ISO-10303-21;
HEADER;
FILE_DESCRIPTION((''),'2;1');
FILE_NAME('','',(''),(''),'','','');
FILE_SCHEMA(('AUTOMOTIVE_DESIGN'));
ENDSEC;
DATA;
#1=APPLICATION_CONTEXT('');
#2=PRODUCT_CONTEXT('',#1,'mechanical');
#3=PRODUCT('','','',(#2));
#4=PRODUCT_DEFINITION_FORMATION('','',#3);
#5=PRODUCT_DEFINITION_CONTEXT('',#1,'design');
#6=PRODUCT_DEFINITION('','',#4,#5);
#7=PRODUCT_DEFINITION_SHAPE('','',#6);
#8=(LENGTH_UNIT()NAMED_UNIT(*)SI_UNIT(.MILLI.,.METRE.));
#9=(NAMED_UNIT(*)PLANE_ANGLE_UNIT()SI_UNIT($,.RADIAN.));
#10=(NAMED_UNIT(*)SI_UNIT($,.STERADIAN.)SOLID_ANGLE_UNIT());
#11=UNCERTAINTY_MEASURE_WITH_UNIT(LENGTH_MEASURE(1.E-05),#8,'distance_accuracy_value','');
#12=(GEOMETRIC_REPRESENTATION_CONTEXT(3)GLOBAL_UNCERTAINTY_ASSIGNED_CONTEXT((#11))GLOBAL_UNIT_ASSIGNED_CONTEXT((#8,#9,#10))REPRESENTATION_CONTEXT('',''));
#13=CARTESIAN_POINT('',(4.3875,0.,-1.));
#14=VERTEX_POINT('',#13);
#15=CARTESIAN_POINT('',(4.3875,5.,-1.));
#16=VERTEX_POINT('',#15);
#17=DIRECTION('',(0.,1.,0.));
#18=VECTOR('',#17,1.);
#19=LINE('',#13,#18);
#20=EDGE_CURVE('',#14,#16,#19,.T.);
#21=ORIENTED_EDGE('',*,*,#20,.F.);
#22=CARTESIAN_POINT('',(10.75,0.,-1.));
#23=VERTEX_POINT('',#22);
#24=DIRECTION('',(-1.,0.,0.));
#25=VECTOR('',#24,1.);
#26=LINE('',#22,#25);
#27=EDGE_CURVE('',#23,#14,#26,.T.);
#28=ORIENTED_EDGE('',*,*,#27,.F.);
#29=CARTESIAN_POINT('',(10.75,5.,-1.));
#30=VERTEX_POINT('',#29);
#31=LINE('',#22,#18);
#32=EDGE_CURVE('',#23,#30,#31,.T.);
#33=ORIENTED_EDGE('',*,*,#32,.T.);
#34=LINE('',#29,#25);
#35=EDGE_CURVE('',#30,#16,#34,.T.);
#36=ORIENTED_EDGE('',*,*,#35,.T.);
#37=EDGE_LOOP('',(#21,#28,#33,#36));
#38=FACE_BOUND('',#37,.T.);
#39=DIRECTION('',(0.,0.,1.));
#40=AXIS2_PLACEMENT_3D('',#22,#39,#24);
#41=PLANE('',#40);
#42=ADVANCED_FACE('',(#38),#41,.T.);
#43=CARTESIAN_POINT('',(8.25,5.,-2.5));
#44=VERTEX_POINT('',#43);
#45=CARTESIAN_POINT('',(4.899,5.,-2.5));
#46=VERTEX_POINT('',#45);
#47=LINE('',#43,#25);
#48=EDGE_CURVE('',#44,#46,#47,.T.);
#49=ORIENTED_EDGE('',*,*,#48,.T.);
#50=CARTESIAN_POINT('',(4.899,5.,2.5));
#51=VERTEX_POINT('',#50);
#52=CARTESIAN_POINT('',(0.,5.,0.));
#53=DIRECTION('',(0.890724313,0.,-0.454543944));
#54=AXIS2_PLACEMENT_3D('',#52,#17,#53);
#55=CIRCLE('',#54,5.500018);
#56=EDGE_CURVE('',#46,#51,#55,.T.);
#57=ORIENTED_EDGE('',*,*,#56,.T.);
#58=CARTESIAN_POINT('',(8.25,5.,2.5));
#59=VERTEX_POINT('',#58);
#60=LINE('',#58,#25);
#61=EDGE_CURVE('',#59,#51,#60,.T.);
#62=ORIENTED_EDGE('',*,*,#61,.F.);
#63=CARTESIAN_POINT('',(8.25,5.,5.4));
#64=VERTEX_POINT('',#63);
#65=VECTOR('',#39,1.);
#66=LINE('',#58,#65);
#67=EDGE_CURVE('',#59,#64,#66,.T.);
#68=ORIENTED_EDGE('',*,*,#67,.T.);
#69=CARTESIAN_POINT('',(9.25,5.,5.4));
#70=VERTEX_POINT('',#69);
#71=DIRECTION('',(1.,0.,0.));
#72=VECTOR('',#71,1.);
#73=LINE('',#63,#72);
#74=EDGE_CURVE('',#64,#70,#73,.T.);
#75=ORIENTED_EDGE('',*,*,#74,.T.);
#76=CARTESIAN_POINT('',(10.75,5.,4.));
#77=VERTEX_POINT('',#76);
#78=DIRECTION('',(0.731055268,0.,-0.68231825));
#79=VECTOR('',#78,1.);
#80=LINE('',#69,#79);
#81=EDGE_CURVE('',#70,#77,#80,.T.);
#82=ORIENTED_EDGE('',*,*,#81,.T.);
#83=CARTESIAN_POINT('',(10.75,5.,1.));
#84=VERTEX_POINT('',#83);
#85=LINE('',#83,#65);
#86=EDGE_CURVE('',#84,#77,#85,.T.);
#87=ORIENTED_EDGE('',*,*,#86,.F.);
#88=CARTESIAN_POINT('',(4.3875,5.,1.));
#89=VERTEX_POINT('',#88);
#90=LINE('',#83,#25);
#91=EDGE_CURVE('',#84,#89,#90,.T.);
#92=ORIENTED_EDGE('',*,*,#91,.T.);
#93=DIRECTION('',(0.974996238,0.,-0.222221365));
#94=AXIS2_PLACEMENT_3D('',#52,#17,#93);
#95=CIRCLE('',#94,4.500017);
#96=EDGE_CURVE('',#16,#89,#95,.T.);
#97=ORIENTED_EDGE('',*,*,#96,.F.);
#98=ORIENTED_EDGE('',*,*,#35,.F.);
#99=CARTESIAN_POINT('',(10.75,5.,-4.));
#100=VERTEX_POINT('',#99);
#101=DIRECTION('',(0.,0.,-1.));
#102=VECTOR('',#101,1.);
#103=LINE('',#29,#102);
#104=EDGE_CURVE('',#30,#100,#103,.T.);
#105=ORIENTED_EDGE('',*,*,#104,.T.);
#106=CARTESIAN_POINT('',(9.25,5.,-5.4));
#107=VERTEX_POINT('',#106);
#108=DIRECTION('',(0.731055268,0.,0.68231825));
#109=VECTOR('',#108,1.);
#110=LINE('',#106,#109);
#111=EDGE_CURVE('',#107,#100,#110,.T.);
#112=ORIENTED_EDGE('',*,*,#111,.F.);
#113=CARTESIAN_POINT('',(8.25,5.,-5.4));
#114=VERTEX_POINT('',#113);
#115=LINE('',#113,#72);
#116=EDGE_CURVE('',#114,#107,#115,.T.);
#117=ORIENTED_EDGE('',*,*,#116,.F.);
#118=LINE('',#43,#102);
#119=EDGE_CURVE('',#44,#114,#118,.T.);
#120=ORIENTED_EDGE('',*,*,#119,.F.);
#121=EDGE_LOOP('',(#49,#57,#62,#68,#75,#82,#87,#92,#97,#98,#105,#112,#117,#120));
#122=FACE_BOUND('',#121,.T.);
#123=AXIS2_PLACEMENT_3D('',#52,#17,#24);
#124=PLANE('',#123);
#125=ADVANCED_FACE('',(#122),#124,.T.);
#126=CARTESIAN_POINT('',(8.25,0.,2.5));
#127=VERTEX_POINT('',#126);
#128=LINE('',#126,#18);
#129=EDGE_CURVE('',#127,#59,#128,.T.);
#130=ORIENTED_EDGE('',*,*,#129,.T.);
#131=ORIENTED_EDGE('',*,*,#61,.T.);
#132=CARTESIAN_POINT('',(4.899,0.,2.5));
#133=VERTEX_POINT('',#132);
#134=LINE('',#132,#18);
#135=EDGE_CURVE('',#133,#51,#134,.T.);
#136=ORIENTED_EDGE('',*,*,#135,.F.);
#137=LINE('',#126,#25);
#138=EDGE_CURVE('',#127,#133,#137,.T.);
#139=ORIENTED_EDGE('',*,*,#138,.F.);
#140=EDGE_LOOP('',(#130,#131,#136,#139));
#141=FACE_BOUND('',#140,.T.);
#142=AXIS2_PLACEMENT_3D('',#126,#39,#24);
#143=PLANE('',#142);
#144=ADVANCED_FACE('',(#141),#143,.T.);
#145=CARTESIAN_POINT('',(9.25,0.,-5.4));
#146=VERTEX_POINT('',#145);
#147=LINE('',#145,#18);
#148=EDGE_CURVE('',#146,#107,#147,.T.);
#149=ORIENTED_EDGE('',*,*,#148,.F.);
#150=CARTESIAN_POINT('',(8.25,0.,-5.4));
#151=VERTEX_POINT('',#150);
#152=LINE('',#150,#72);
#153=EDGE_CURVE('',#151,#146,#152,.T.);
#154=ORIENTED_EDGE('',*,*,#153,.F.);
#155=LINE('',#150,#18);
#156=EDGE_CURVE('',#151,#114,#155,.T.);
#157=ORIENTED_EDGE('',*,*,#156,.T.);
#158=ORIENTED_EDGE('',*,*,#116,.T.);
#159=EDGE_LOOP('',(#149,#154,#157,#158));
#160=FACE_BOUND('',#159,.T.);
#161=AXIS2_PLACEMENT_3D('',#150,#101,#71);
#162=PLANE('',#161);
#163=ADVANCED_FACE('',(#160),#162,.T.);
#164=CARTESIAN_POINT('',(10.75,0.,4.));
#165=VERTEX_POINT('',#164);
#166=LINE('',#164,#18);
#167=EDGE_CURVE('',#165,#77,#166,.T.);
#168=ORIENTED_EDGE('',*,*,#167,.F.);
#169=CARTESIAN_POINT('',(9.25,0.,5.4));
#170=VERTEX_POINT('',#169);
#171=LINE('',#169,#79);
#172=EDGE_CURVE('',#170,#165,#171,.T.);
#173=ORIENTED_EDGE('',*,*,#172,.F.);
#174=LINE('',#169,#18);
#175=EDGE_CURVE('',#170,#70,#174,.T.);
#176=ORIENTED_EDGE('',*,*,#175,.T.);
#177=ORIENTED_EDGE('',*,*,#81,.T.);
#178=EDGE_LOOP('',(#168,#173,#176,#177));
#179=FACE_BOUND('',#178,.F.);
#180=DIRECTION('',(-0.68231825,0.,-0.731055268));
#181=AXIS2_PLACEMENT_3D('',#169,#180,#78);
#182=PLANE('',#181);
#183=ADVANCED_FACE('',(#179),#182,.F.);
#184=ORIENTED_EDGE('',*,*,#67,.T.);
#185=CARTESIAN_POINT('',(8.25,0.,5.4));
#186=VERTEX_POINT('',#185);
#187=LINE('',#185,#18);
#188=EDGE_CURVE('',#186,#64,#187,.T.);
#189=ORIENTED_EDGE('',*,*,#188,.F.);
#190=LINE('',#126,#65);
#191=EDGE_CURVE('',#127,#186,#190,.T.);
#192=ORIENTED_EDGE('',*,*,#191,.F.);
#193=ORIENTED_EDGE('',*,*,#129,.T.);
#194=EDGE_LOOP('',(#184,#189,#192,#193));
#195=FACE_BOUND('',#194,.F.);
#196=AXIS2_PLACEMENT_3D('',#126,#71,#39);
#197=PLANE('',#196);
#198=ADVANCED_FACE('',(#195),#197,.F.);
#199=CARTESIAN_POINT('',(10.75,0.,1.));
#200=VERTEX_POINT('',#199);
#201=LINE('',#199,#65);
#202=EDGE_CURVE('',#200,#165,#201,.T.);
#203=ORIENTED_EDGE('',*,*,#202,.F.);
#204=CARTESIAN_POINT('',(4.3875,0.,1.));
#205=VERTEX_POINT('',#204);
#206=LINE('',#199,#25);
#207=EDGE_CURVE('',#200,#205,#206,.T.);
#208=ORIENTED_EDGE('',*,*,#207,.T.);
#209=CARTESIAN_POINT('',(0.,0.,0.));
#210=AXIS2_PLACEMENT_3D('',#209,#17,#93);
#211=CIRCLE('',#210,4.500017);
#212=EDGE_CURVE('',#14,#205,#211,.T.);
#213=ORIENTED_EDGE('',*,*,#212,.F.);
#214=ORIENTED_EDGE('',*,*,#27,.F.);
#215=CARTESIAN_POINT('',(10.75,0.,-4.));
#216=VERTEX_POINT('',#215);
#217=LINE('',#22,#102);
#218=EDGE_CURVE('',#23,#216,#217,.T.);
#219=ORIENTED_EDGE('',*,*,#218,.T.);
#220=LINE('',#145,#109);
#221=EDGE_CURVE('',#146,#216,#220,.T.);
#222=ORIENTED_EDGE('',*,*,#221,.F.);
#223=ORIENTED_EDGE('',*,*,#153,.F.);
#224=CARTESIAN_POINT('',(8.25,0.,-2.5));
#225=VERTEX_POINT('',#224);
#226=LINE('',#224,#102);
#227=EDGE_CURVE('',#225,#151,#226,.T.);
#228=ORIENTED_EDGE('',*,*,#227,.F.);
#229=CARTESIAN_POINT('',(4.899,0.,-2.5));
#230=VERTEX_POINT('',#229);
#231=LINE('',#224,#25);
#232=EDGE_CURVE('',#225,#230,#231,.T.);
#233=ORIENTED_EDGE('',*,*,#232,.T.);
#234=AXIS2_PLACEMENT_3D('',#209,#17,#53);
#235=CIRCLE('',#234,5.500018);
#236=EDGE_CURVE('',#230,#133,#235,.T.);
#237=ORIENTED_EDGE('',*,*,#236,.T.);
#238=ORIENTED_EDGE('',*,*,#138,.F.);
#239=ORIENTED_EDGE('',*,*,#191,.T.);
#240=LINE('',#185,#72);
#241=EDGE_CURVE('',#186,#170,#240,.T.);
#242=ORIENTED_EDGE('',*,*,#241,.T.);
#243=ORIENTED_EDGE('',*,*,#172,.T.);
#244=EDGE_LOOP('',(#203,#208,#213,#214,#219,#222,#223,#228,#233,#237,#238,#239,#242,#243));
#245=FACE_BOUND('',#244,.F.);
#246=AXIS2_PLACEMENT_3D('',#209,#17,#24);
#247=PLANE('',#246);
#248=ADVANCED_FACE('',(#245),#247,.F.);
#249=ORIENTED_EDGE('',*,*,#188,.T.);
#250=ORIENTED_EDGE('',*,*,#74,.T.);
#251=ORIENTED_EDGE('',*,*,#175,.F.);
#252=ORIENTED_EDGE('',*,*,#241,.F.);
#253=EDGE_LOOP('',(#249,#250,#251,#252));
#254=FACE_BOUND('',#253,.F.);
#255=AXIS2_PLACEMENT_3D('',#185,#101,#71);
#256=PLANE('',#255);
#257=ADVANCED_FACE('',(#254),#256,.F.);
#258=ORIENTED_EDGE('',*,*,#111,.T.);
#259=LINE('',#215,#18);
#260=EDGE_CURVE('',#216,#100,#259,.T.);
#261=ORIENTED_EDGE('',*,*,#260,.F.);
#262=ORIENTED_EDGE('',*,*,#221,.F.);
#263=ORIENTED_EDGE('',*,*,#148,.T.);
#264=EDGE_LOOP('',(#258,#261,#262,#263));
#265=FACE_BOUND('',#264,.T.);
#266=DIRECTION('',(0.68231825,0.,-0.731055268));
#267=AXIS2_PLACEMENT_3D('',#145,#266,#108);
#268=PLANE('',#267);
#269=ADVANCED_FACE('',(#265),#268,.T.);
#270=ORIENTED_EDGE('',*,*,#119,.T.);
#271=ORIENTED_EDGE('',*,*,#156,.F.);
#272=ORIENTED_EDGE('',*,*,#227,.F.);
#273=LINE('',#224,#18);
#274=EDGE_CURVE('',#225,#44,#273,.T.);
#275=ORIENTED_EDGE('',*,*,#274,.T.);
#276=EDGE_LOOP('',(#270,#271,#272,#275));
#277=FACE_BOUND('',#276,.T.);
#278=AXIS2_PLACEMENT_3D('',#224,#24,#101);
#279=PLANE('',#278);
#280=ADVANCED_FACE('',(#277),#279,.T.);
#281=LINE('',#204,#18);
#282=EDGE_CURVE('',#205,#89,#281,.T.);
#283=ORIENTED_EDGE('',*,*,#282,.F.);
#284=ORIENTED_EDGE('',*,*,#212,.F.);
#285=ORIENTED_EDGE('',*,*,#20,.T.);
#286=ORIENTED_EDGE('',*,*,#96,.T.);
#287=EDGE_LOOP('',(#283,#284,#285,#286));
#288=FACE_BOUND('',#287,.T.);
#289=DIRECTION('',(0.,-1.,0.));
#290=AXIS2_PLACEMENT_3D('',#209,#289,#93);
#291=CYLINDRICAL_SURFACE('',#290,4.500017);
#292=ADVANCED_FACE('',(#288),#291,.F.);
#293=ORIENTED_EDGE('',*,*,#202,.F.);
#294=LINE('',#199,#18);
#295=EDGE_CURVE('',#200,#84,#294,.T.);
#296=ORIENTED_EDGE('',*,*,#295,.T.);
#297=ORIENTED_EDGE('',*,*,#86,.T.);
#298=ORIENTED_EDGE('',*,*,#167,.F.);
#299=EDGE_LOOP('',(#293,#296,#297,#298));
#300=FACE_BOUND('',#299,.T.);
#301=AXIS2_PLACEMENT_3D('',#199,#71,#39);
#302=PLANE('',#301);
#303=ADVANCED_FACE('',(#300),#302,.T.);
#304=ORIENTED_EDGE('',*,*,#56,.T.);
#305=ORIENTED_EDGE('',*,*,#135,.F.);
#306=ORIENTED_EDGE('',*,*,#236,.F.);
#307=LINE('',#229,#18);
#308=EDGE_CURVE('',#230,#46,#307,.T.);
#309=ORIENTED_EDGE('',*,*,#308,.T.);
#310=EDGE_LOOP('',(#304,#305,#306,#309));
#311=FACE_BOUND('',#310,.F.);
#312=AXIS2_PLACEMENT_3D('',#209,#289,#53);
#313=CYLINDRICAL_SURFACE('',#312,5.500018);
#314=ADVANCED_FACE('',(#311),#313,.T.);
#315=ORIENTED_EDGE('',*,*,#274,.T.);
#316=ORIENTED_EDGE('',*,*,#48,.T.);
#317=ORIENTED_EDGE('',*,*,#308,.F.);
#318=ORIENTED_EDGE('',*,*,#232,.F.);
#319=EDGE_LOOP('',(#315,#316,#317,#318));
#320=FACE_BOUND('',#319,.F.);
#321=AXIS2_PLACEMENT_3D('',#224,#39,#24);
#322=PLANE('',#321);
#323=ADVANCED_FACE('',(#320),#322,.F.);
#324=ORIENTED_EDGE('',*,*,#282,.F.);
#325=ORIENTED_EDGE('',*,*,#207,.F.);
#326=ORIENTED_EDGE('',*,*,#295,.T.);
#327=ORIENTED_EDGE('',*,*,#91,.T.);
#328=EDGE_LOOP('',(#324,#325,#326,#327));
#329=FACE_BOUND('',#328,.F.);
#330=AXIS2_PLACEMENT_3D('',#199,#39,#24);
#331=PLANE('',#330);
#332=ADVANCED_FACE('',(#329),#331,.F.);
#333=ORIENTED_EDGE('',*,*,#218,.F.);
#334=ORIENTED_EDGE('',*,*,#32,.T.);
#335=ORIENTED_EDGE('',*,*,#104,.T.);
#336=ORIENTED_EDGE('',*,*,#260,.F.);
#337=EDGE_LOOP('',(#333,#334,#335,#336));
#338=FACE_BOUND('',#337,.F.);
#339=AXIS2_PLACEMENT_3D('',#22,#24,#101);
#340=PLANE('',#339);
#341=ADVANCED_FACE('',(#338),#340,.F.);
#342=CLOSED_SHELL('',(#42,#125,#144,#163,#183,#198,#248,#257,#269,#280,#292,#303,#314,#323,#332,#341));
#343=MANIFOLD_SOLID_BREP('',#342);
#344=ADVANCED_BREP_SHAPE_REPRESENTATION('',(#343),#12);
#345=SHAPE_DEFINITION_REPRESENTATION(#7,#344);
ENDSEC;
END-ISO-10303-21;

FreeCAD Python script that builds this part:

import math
import FreeCAD as App
import Part
import Sketcher
Q = App.Units.Quantity

doc = App.newDocument("Part")
body = doc.addObject("PartDesign::Body", "Body")

# Sketch on XZ plane
sketch1 = body.newObject("Sketcher::SketchObject", "Sketch")
sketch1.AttachmentSupport = (doc.getObject("XZ_Plane"), [""])
sketch1.MapMode = "FlatFace"
sketch1.addGeometry([
    Part.ArcOfCircle(Part.Circle(App.Vector(0, 0, 0), App.Vector(0, 0, 1), 4.5), math.radians(13), math.radians(347)),  # 0
    Part.LineSegment(App.Vector(4.4, -1, 0), App.Vector(10.8, -1, 0)),  # 1
    Part.LineSegment(App.Vector(10.8, -1, 0), App.Vector(10.8, -4, 0)),  # 2
    Part.LineSegment(App.Vector(10.8, -4, 0), App.Vector(9.2, -5.4, 0)),  # 3
    Part.LineSegment(App.Vector(9.2, -5.4, 0), App.Vector(8.2, -5.4, 0)),  # 4
    Part.LineSegment(App.Vector(8.2, -5.4, 0), App.Vector(8.2, -2.5, 0)),  # 5
    Part.LineSegment(App.Vector(8.2, -2.5, 0), App.Vector(4.9, -2.5, 0)),  # 6
    Part.ArcOfCircle(Part.Circle(App.Vector(0, 0, 0), App.Vector(0, 0, 1), 5.5), math.radians(27), math.radians(333)),  # 7
    Part.LineSegment(App.Vector(4.9, 2.5, 0), App.Vector(8.2, 2.5, 0)),  # 8
    Part.LineSegment(App.Vector(8.2, 2.5, 0), App.Vector(8.2, 5.4, 0)),  # 9
    Part.LineSegment(App.Vector(8.2, 5.4, 0), App.Vector(9.2, 5.4, 0)),  # 10
    Part.LineSegment(App.Vector(9.2, 5.4, 0), App.Vector(10.8, 4, 0)),  # 11
    Part.LineSegment(App.Vector(10.8, 4, 0), App.Vector(10.8, 1, 0)),  # 12
    Part.LineSegment(App.Vector(10.8, 1, 0), App.Vector(4.4, 1, 0)),  # 13
], False)
sketch1.addConstraint([
    Sketcher.Constraint("Coincident", 0, 2, 1, 1),
    Sketcher.Constraint("Coincident", 1, 2, 2, 1),
    Sketcher.Constraint("Coincident", 2, 2, 3, 1),
    Sketcher.Constraint("Coincident", 3, 2, 4, 1),
    Sketcher.Constraint("Coincident", 4, 2, 5, 1),
    Sketcher.Constraint("Coincident", 5, 2, 6, 1),
    Sketcher.Constraint("Coincident", 6, 2, 7, 2),
    Sketcher.Constraint("Coincident", 7, 1, 8, 1),
    Sketcher.Constraint("Coincident", 8, 2, 9, 1),
    Sketcher.Constraint("Coincident", 9, 2, 10, 1),
    Sketcher.Constraint("Coincident", 10, 2, 11, 1),
    Sketcher.Constraint("Coincident", 11, 2, 12, 1),
    Sketcher.Constraint("Coincident", 12, 2, 13, 1),
    Sketcher.Constraint("Coincident", 13, 2, 0, 1),
    Sketcher.Constraint("Horizontal", 1),
    Sketcher.Constraint("Vertical", 2),
    Sketcher.Constraint("Horizontal", 4),
    Sketcher.Constraint("Vertical", 5),
    Sketcher.Constraint("Horizontal", 6),
    Sketcher.Constraint("Horizontal", 8),
    Sketcher.Constraint("Vertical", 9),
    Sketcher.Constraint("Horizontal", 10),
    Sketcher.Constraint("Vertical", 12),
    Sketcher.Constraint("Horizontal", 13),
    Sketcher.Constraint("Coincident", 0, 3, -1, 1),
    Sketcher.Constraint("Coincident", 7, 3, -1, 1),
    Sketcher.Constraint("Symmetric", 5, 2, 8, 2, -1),
    Sketcher.Constraint("Symmetric", 3, 2, 10, 2, -1),
    Sketcher.Constraint("Symmetric", 2, 2, 11, 2, -1),
    Sketcher.Constraint("Vertical", 0, 2, 13, 2),
    Sketcher.Constraint("Radius", 0, Q("4.5 mm")),
    Sketcher.Constraint("Radius", 7, Q("5.5 mm")),
    Sketcher.Constraint("DistanceX", 4, 2, 4, 1, Q("1 mm")),
    Sketcher.Constraint("DistanceY", 2, 2, 2, 1, Q("3 mm")),
    Sketcher.Constraint("DistanceY", 0, 2, -1, 1, Q("1 mm")),
    Sketcher.Constraint("DistanceY", 5, 2, -1, 1, Q("2.5 mm")),
    Sketcher.Constraint("DistanceX", 3, 2, 2, 2, Q("1.5 mm")),
    Sketcher.Constraint("DistanceY", 3, 2, 1, 2, Q("4.4 mm")),
    Sketcher.Constraint("DistanceX", 6, 2, 6, 1, Q("3.351 mm")),
])
pad1 = body.newObject("PartDesign::Pad", "Pad")
pad1.Profile = sketch1
pad1.Length = 5
pad1.Reversed = True

doc.recompute()
